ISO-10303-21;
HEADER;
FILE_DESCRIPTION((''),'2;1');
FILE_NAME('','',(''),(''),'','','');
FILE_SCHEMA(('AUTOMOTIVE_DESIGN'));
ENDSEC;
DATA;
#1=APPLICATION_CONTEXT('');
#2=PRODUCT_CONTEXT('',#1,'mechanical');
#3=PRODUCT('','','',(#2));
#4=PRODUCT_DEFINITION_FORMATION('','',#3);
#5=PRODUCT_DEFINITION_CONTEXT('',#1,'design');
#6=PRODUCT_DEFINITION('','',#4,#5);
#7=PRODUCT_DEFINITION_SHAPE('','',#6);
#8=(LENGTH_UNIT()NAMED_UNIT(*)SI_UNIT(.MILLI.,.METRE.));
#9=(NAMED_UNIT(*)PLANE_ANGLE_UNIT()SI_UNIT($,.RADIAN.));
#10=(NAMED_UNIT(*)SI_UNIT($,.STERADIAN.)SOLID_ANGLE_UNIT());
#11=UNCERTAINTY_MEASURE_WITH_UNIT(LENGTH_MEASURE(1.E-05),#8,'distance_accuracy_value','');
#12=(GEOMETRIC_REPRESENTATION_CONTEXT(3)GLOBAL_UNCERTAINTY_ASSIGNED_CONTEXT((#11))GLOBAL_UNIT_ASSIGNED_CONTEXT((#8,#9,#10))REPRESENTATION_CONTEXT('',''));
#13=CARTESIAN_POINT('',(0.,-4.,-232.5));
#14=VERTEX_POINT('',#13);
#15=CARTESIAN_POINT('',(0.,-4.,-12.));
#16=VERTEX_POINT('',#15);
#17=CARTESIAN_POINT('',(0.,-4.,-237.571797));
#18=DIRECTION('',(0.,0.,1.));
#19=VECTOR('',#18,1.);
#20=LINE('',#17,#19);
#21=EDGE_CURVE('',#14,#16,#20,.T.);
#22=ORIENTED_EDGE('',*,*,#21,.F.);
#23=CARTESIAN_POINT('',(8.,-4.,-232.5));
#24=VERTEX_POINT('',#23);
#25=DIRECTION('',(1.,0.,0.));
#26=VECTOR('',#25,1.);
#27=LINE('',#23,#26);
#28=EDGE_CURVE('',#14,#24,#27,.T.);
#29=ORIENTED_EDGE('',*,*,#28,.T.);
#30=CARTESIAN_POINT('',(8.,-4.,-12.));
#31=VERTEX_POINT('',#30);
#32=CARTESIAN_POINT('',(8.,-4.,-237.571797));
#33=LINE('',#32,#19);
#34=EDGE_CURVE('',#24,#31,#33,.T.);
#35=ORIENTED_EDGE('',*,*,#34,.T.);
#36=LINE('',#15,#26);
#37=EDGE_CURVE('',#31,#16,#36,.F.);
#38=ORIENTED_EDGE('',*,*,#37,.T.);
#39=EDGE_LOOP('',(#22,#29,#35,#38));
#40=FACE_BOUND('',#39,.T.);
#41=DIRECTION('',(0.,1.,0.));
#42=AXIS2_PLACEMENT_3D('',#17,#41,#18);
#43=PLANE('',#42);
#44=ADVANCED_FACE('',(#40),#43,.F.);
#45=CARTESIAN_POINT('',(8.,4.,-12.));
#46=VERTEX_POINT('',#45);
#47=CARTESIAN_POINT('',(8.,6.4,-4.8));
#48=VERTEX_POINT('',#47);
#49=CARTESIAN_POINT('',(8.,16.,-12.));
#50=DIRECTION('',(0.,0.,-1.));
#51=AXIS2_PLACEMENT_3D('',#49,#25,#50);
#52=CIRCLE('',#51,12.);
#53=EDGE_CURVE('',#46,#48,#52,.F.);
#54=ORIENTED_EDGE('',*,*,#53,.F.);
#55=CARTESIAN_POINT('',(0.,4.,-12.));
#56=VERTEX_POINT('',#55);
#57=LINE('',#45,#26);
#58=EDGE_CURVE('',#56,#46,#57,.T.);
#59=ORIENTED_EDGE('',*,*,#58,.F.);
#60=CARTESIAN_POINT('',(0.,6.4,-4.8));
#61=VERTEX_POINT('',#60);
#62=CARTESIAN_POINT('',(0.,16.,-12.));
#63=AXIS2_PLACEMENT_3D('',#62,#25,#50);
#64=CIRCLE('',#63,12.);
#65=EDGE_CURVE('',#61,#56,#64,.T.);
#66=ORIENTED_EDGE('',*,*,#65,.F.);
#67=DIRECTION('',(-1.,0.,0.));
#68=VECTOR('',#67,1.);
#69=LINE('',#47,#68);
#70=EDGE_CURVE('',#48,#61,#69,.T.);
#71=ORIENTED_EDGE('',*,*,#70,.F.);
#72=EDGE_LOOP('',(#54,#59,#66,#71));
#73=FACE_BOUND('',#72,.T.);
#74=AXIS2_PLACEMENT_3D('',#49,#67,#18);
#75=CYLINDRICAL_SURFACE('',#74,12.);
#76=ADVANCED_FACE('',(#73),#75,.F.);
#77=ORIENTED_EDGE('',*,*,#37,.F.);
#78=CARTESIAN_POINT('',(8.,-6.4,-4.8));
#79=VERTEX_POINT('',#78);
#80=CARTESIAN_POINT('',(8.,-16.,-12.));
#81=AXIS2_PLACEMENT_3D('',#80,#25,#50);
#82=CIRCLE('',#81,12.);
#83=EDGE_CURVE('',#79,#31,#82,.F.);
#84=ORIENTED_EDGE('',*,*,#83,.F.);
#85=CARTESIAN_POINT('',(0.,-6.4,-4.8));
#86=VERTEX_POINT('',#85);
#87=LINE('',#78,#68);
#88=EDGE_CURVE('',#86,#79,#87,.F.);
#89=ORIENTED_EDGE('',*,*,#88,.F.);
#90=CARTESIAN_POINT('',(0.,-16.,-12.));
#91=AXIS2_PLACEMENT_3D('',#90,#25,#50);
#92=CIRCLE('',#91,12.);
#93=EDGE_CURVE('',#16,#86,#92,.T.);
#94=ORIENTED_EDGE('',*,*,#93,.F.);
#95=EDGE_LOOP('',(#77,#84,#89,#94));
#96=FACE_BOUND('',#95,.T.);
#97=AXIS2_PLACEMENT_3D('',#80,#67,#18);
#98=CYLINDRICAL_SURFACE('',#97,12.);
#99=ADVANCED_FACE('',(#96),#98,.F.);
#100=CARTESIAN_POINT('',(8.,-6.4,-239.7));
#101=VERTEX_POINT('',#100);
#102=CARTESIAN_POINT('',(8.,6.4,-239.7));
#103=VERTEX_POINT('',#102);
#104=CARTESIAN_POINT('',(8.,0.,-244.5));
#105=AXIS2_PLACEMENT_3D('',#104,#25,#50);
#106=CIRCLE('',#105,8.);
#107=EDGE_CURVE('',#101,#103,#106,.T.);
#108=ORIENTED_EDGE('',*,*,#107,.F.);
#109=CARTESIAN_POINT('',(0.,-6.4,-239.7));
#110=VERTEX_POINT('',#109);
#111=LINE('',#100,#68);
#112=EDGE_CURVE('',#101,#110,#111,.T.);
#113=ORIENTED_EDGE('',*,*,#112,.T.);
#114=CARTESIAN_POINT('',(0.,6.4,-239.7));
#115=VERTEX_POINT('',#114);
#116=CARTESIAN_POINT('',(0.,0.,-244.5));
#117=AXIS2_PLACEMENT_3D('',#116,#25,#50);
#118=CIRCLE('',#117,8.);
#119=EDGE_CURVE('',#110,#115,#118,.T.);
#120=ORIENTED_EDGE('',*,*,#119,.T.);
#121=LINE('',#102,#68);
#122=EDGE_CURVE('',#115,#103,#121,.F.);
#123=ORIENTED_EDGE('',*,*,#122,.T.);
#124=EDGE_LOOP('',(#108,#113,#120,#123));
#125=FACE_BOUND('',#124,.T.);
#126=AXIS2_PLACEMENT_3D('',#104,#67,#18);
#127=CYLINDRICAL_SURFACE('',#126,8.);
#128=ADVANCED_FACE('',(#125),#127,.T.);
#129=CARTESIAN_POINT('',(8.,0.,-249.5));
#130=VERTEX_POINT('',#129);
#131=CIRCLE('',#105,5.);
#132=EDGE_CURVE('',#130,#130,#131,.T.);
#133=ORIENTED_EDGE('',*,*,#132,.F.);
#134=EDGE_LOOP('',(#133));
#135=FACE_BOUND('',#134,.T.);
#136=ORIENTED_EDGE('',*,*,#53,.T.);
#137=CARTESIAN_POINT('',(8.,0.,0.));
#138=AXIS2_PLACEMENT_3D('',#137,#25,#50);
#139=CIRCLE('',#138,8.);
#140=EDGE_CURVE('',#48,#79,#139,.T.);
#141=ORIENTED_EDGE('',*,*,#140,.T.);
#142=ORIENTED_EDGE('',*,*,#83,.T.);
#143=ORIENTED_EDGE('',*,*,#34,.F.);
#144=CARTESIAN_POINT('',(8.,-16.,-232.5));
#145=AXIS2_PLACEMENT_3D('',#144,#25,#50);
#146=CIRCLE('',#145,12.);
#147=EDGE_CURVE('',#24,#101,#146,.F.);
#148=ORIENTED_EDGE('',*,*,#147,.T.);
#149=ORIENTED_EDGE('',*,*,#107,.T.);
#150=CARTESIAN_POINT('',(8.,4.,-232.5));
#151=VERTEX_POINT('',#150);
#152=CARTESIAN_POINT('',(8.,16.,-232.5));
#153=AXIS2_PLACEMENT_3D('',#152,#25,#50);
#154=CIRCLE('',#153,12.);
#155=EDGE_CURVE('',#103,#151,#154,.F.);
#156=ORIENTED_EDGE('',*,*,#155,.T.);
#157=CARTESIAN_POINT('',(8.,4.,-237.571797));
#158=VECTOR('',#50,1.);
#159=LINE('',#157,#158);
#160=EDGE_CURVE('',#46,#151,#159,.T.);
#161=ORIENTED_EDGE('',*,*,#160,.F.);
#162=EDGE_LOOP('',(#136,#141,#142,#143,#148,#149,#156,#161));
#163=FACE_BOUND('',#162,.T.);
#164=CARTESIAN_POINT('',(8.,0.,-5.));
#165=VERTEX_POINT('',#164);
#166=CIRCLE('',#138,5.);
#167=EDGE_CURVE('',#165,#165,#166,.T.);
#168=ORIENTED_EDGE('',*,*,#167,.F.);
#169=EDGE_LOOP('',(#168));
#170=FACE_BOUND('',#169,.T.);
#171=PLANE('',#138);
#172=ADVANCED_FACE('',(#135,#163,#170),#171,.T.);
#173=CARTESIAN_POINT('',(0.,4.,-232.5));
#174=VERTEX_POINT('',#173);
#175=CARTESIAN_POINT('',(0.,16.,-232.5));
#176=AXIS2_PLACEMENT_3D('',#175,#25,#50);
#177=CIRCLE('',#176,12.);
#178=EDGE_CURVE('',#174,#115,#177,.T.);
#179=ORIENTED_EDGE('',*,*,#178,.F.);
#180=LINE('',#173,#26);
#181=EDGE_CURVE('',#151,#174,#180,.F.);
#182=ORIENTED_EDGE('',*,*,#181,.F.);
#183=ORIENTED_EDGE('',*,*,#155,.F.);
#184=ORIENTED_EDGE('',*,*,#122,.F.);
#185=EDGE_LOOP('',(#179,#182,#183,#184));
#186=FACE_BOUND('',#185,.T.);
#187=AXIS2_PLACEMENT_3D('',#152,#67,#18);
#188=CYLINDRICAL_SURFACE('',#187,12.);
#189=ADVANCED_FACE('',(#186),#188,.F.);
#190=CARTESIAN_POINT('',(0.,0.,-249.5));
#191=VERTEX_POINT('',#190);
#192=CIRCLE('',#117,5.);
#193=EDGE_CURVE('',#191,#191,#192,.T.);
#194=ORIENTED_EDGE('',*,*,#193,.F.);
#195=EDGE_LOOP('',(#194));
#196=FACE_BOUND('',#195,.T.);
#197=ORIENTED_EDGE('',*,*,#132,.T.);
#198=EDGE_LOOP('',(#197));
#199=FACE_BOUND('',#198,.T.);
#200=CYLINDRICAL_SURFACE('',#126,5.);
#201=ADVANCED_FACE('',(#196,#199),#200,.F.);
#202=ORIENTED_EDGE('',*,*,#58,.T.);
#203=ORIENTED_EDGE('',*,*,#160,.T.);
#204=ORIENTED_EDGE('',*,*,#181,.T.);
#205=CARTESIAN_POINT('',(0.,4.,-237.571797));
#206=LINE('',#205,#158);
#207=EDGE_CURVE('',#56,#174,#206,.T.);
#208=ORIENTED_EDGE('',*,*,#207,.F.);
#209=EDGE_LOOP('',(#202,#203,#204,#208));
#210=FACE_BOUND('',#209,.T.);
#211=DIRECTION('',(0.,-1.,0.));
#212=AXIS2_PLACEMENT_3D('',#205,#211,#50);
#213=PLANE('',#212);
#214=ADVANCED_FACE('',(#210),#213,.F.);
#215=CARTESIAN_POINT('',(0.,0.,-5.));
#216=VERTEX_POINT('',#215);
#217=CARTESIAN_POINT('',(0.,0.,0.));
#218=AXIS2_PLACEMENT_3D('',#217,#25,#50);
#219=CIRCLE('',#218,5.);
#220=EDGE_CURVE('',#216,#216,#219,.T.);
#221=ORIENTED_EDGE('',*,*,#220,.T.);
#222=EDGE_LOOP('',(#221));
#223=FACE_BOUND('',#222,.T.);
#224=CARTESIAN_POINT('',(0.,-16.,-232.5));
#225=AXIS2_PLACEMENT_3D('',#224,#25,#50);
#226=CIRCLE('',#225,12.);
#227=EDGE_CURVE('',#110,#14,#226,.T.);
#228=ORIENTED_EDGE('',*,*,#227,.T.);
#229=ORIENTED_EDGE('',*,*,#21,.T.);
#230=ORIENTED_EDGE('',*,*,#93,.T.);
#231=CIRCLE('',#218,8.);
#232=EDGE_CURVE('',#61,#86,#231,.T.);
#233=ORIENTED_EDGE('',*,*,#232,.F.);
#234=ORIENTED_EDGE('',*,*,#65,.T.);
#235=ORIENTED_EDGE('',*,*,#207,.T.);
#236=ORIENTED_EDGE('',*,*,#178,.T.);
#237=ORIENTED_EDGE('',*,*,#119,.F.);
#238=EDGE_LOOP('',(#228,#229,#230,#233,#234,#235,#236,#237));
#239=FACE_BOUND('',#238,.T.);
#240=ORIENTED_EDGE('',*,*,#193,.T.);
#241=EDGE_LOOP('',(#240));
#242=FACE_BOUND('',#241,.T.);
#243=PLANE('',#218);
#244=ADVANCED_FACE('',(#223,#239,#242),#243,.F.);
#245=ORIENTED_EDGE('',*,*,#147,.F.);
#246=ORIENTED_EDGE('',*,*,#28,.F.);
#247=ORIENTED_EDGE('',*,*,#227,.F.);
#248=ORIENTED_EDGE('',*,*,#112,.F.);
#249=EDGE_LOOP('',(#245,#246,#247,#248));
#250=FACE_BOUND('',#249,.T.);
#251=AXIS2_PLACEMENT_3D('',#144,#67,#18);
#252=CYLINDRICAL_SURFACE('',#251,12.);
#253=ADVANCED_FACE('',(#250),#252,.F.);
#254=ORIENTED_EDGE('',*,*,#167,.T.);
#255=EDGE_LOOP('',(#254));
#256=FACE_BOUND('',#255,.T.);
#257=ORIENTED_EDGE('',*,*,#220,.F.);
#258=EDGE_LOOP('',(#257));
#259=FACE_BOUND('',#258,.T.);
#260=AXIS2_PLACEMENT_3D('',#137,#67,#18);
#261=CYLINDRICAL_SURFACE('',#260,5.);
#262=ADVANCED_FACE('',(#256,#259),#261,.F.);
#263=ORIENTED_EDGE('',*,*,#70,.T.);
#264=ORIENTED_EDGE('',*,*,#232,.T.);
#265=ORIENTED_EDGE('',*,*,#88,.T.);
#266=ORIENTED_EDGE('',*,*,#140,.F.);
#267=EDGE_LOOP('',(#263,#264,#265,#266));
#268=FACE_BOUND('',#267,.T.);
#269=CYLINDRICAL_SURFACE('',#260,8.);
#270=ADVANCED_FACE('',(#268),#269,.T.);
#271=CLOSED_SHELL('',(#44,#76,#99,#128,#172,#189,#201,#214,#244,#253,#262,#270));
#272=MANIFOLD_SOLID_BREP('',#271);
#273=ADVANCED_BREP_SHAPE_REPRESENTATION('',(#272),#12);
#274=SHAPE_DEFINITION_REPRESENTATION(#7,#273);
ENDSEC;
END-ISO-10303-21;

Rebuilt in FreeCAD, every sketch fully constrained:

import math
import FreeCAD as App
import Part
import Sketcher


def edges_at(feature, points):
    """Names of the edges that pass closest to the given points."""
    edges = feature.Shape.Edges
    near = lambda p: min(range(len(edges)), key=lambda i: edges[i].distToShape(Part.Vertex(*p))[0])
    return sorted({f"Edge{near(p) + 1}" for p in points})

doc = App.newDocument("Part")
params = doc.addObject("Spreadsheet::Sheet", "Params")
for row, (alias, value) in enumerate([
    ("sketch1_diameter", "10 mm"),
    ("sketch1_radius", "8 mm"),
    ("sketch1_height", "244.5 mm"),
    ("pad1_length", "8 mm"),
    ("sketch2_radius", "8 mm"),
    ("sketch2_height", "244.5 mm"),
    ("fillet_radius", "12 mm"),
], start=1):
    params.set(f"A{row}", alias)
    params.set(f"B{row}", "=" + value)
    params.setAlias(f"B{row}", alias)

body = doc.addObject("PartDesign::Body", "Body")

# Sketch on YZ plane
sketch1 = body.newObject("Sketcher::SketchObject", "Sketch")
sketch1.AttachmentSupport = (doc.getObject("YZ_Plane"), [""])
sketch1.MapMode = "FlatFace"
sketch1.addGeometry(Part.LineSegment(App.Vector(8, -244, 0), App.Vector(8, 0, 0)), False)
sketch1.addGeometry(Part.ArcOfCircle(Part.Circle(App.Vector(0, 0, 0), App.Vector(0, 0, 1), 8), math.radians(0), math.radians(180)), False)
sketch1.addGeometry(Part.LineSegment(App.Vector(-8, 0, 0), App.Vector(-8, -244, 0)), False)
sketch1.addGeometry(Part.ArcOfCircle(Part.Circle(App.Vector(0, -244, 0), App.Vector(0, 0, 1), 8), math.radians(180), math.radians(360)), False)
sketch1.addGeometry(Part.Circle(App.Vector(0, -244, 0), App.Vector(0, 0, 1), 5), False)
sketch1.addGeometry(Part.Circle(App.Vector(0, 0, 0), App.Vector(0, 0, 1), 5), False)
sketch1.addConstraint(Sketcher.Constraint("Tangent", 0, 2, 1, 1))
sketch1.addConstraint(Sketcher.Constraint("Tangent", 1, 2, 2, 1))
sketch1.addConstraint(Sketcher.Constraint("Tangent", 2, 2, 3, 1))
sketch1.addConstraint(Sketcher.Constraint("Tangent", 3, 2, 0, 1))
sketch1.addConstraint(Sketcher.Constraint("Vertical", 0))
sketch1.addConstraint(Sketcher.Constraint("Vertical", 2))
sketch1.addConstraint(Sketcher.Constraint("Coincident", 1, 3, -1, 1))
sketch1.addConstraint(Sketcher.Constraint("Coincident", 5, 3, -1, 1))
sketch1.addConstraint(Sketcher.Constraint("Coincident", 4, 3, 3, 3))
sketch1.addConstraint(Sketcher.Constraint("Equal", 4, 5))
sketch1.addConstraint(Sketcher.Constraint("Diameter", 4, 10.0))
sketch1.addConstraint(Sketcher.Constraint("Radius", 1, 8.0))
sketch1.addConstraint(Sketcher.Constraint("DistanceY", 0, 1, 0, 2, 244.5))
sketch1.setExpression("Constraints[10]", "Params.sketch1_diameter")
sketch1.setExpression("Constraints[11]", "Params.sketch1_radius")
sketch1.setExpression("Constraints[12]", "Params.sketch1_height")
pad1 = body.newObject("PartDesign::Pad", "Pad")
pad1.Profile = sketch1
pad1.setExpression("Length", "Params.pad1_length")

# Sketch on YZ plane
sketch2 = body.newObject("Sketcher::SketchObject", "Sketch001")
sketch2.AttachmentSupport = (doc.getObject("YZ_Plane"), [""])
sketch2.MapMode = "FlatFace"
sketch2.AttachmentOffset = App.Placement(App.Vector(0, 0, 8), App.Rotation())
sketch2.addGeometry(Part.LineSegment(App.Vector(-4, -238, 0), App.Vector(-4, -7, 0)), False)
sketch2.addGeometry(Part.ArcOfCircle(Part.Circle(App.Vector(0, 0, 0), App.Vector(0, 0, 1), 8), math.radians(-180), math.radians(-120)), False)
sketch2.addGeometry(Part.LineSegment(App.Vector(-8, 0, 0), App.Vector(-8, -244, 0)), False)
sketch2.addGeometry(Part.ArcOfCircle(Part.Circle(App.Vector(0, -245, 0), App.Vector(0, 0, 1), 8), math.radians(120), math.radians(180)), False)
sketch2.addGeometry(Part.LineSegment(App.Vector(4, -7, 0), App.Vector(4, -238, 0)), False)
sketch2.addGeometry(Part.ArcOfCircle(Part.Circle(App.Vector(0, -245, 0), App.Vector(0, 0, 1), 8), math.radians(0), math.radians(60)), False)
sketch2.addGeometry(Part.LineSegment(App.Vector(8, -244, 0), App.Vector(8, 0, 0)), False)
sketch2.addGeometry(Part.ArcOfCircle(Part.Circle(App.Vector(0, 0, 0), App.Vector(0, 0, 1), 8), math.radians(-60), math.radians(0)), False)
sketch2.addConstraint(Sketcher.Constraint("Coincident", 0, 2, 1, 2))
sketch2.addConstraint(Sketcher.Constraint("Tangent", 1, 1, 2, 1))
sketch2.addConstraint(Sketcher.Constraint("Tangent", 2, 2, 3, 2))
sketch2.addConstraint(Sketcher.Constraint("Coincident", 3, 1, 0, 1))
sketch2.addConstraint(Sketcher.Constraint("Coincident", 4, 2, 5, 2))
sketch2.addConstraint(Sketcher.Constraint("Tangent", 5, 1, 6, 1))
sketch2.addConstraint(Sketcher.Constraint("Tangent", 6, 2, 7, 2))
sketch2.addConstraint(Sketcher.Constraint("Coincident", 7, 1, 4, 1))
sketch2.addConstraint(Sketcher.Constraint("Vertical", 0))
sketch2.addConstraint(Sketcher.Constraint("Vertical", 2))
sketch2.addConstraint(Sketcher.Constraint("Vertical", 4))
sketch2.addConstraint(Sketcher.Constraint("Vertical", 6))
sketch2.addConstraint(Sketcher.Constraint("Coincident", 1, 3, -1, 1))
sketch2.addConstraint(Sketcher.Constraint("Coincident", 7, 3, -1, 1))
sketch2.addConstraint(Sketcher.Constraint("Coincident", 5, 3, 3, 3))
sketch2.addConstraint(Sketcher.Constraint("Equal", 1, 3))
sketch2.addConstraint(Sketcher.Constraint("Equal", 3, 5))
sketch2.addConstraint(Sketcher.Constraint("Horizontal", 3, 1, 4, 2))
sketch2.addConstraint(Sketcher.Constraint("Radius", 1, 8.0))
sketch2.addConstraint(Sketcher.Constraint("DistanceY", 2, 2, 2, 1, 244.5))
sketch2.addConstraint(Sketcher.Constraint("DistanceX", 0, 2, -1, 1, 4.0))
sketch2.setExpression("Constraints[18]", "Params.sketch2_radius")
sketch2.setExpression("Constraints[19]", "Params.sketch2_height")
pocket1 = body.newObject("PartDesign::Pocket", "Pocket")
pocket1.Profile = sketch2
pocket1.Type = "ThroughAll"
doc.recompute()

fillet = body.newObject("PartDesign::Fillet", "Fillet")
fillet.Base = (pocket1, edges_at(pocket1, [
    (4, -4, -6.928),
    (4, -4, -237.572),
    (4, 4, -237.572),
    (4, 4, -6.928),
]))
fillet.setExpression("Radius", "Params.fillet_radius")
body2 = doc.addObject("PartDesign::Body", "Body001")
doc.recompute()

body.Placement = App.Placement(App.Vector(0, 0, 244.5), App.Rotation(App.Vector(0, 0, 1), 0))
boolean = body2.newObject("PartDesign::Boolean", "Boolean")
boolean.Type = "Fuse"
boolean.addObjects([body])
body3 = doc.addObject("PartDesign::Body", "Body002")
doc.recompute()

body2.Placement = App.Placement(App.Vector(0, 0, -244.5), App.Rotation(App.Vector(0, 0, 1), 0))
boolean2 = body3.newObject("PartDesign::Boolean", "Boolean001")
boolean2.Type = "Fuse"
boolean2.addObjects([body2])

doc.recompute()
